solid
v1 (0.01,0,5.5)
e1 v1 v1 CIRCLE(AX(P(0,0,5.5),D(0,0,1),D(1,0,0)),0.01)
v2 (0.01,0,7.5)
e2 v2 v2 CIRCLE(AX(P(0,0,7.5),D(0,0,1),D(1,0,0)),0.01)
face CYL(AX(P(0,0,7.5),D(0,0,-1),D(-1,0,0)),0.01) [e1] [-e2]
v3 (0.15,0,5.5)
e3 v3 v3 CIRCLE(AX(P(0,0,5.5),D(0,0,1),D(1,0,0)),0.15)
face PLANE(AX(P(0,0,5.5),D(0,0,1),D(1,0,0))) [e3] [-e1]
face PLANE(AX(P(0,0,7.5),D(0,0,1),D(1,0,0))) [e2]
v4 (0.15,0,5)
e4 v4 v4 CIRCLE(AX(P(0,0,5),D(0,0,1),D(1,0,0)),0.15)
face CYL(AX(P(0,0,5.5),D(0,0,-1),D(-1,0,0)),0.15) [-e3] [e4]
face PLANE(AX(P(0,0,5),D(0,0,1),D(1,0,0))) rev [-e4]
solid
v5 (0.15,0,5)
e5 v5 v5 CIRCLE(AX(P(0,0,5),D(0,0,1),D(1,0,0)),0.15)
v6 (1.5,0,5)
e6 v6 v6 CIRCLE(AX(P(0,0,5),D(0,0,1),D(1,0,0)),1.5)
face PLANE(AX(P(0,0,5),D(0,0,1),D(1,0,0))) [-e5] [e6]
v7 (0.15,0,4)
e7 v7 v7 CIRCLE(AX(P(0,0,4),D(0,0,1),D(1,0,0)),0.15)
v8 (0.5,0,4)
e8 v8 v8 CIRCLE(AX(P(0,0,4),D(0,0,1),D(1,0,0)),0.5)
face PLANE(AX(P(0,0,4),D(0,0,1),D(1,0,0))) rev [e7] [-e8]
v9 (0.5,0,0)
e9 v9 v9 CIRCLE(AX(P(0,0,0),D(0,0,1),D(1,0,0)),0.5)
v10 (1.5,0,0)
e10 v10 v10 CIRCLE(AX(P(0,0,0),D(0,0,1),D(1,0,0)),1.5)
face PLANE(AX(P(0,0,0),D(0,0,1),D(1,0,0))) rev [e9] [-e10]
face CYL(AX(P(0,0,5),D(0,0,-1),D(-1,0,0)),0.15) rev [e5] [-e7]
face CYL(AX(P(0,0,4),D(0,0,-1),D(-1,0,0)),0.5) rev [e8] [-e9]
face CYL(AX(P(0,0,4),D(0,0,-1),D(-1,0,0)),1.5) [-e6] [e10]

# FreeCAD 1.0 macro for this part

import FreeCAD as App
import Part
import Sketcher

V = App.Vector
Q = App.Units.Quantity

doc = App.newDocument("Part")
body = doc.addObject("PartDesign::Body", "Body")

sketch1 = body.newObject("Sketcher::SketchObject", "Sketch")
sketch1.AttachmentSupport = (doc.getObject("XY_Plane"), [""])
sketch1.MapMode = "FlatFace"
sketch1.addGeometry([
    Part.Circle(V(0, 0, 0), V(0, 0, 1), 1.5),
    Part.Circle(V(0, 0, 0), V(0, 0, 1), 0.5),
], False)
sketch1.addConstraint([
    Sketcher.Constraint("Coincident", 0, 3, -1, 1),
    Sketcher.Constraint("Coincident", 1, 3, -1, 1),
    Sketcher.Constraint("Diameter", 0, Q("3 mm")),
    Sketcher.Constraint("Diameter", 1, Q("1 mm")),
])
pad1 = body.newObject("PartDesign::Pad", "Pad")
pad1.Profile = sketch1
pad1.Length = 4

sketch2 = body.newObject("Sketcher::SketchObject", "Sketch001")
sketch2.AttachmentSupport = (doc.getObject("XY_Plane"), [""])
sketch2.MapMode = "FlatFace"
sketch2.AttachmentOffset = App.Placement(V(0, 0, 4), App.Rotation())
sketch2.addGeometry([
    Part.Circle(V(0, 0, 0), V(0, 0, 1), 1.5),
    Part.Circle(V(0, 0, 0), V(0, 0, 1), 0.15),
], False)
sketch2.addConstraint([
    Sketcher.Constraint("Coincident", 0, 3, -1, 1),
    Sketcher.Constraint("Coincident", 1, 3, -1, 1),
    Sketcher.Constraint("Diameter", 0, Q("3 mm")),
    Sketcher.Constraint("Diameter", 1, Q("0.3 mm")),
])
pad2 = body.newObject("PartDesign::Pad", "Pad001")
pad2.Profile = sketch2
pad2.Length = 1
body2 = doc.addObject("PartDesign::Body", "Body001")

sketch3 = body2.newObject("Sketcher::SketchObject", "Sketch002")
sketch3.AttachmentSupport = (doc.getObject("XY_Plane001"), [""])
sketch3.MapMode = "FlatFace"
sketch3.AttachmentOffset = App.Placement(V(0, 0, 5), App.Rotation())
sketch3.addGeometry(Part.Circle(V(0, 0, 0), V(0, 0, 1), 0.15), False)
sketch3.addConstraint([
    Sketcher.Constraint("Coincident", 0, 3, -1, 1),
    Sketcher.Constraint("Diameter", 0, Q("0.3 mm")),
])
pad3 = body2.newObject("PartDesign::Pad", "Pad002")
pad3.Profile = sketch3
pad3.Length = 0.5

sketch4 = body2.newObject("Sketcher::SketchObject", "Sketch003")
sketch4.AttachmentSupport = (doc.getObject("XY_Plane001"), [""])
sketch4.MapMode = "FlatFace"
sketch4.AttachmentOffset = App.Placement(V(0, 0, 5.5), App.Rotation())
sketch4.addGeometry(Part.Circle(V(0, 0, 0), V(0, 0, 1), 0.01), False)
sketch4.addConstraint([
    Sketcher.Constraint("Coincident", 0, 3, -1, 1),
    Sketcher.Constraint("Diameter", 0, Q("0.02 mm")),
])
pad4 = body2.newObject("PartDesign::Pad", "Pad003")
pad4.Profile = sketch4
pad4.Length = 2

doc.recompute()
